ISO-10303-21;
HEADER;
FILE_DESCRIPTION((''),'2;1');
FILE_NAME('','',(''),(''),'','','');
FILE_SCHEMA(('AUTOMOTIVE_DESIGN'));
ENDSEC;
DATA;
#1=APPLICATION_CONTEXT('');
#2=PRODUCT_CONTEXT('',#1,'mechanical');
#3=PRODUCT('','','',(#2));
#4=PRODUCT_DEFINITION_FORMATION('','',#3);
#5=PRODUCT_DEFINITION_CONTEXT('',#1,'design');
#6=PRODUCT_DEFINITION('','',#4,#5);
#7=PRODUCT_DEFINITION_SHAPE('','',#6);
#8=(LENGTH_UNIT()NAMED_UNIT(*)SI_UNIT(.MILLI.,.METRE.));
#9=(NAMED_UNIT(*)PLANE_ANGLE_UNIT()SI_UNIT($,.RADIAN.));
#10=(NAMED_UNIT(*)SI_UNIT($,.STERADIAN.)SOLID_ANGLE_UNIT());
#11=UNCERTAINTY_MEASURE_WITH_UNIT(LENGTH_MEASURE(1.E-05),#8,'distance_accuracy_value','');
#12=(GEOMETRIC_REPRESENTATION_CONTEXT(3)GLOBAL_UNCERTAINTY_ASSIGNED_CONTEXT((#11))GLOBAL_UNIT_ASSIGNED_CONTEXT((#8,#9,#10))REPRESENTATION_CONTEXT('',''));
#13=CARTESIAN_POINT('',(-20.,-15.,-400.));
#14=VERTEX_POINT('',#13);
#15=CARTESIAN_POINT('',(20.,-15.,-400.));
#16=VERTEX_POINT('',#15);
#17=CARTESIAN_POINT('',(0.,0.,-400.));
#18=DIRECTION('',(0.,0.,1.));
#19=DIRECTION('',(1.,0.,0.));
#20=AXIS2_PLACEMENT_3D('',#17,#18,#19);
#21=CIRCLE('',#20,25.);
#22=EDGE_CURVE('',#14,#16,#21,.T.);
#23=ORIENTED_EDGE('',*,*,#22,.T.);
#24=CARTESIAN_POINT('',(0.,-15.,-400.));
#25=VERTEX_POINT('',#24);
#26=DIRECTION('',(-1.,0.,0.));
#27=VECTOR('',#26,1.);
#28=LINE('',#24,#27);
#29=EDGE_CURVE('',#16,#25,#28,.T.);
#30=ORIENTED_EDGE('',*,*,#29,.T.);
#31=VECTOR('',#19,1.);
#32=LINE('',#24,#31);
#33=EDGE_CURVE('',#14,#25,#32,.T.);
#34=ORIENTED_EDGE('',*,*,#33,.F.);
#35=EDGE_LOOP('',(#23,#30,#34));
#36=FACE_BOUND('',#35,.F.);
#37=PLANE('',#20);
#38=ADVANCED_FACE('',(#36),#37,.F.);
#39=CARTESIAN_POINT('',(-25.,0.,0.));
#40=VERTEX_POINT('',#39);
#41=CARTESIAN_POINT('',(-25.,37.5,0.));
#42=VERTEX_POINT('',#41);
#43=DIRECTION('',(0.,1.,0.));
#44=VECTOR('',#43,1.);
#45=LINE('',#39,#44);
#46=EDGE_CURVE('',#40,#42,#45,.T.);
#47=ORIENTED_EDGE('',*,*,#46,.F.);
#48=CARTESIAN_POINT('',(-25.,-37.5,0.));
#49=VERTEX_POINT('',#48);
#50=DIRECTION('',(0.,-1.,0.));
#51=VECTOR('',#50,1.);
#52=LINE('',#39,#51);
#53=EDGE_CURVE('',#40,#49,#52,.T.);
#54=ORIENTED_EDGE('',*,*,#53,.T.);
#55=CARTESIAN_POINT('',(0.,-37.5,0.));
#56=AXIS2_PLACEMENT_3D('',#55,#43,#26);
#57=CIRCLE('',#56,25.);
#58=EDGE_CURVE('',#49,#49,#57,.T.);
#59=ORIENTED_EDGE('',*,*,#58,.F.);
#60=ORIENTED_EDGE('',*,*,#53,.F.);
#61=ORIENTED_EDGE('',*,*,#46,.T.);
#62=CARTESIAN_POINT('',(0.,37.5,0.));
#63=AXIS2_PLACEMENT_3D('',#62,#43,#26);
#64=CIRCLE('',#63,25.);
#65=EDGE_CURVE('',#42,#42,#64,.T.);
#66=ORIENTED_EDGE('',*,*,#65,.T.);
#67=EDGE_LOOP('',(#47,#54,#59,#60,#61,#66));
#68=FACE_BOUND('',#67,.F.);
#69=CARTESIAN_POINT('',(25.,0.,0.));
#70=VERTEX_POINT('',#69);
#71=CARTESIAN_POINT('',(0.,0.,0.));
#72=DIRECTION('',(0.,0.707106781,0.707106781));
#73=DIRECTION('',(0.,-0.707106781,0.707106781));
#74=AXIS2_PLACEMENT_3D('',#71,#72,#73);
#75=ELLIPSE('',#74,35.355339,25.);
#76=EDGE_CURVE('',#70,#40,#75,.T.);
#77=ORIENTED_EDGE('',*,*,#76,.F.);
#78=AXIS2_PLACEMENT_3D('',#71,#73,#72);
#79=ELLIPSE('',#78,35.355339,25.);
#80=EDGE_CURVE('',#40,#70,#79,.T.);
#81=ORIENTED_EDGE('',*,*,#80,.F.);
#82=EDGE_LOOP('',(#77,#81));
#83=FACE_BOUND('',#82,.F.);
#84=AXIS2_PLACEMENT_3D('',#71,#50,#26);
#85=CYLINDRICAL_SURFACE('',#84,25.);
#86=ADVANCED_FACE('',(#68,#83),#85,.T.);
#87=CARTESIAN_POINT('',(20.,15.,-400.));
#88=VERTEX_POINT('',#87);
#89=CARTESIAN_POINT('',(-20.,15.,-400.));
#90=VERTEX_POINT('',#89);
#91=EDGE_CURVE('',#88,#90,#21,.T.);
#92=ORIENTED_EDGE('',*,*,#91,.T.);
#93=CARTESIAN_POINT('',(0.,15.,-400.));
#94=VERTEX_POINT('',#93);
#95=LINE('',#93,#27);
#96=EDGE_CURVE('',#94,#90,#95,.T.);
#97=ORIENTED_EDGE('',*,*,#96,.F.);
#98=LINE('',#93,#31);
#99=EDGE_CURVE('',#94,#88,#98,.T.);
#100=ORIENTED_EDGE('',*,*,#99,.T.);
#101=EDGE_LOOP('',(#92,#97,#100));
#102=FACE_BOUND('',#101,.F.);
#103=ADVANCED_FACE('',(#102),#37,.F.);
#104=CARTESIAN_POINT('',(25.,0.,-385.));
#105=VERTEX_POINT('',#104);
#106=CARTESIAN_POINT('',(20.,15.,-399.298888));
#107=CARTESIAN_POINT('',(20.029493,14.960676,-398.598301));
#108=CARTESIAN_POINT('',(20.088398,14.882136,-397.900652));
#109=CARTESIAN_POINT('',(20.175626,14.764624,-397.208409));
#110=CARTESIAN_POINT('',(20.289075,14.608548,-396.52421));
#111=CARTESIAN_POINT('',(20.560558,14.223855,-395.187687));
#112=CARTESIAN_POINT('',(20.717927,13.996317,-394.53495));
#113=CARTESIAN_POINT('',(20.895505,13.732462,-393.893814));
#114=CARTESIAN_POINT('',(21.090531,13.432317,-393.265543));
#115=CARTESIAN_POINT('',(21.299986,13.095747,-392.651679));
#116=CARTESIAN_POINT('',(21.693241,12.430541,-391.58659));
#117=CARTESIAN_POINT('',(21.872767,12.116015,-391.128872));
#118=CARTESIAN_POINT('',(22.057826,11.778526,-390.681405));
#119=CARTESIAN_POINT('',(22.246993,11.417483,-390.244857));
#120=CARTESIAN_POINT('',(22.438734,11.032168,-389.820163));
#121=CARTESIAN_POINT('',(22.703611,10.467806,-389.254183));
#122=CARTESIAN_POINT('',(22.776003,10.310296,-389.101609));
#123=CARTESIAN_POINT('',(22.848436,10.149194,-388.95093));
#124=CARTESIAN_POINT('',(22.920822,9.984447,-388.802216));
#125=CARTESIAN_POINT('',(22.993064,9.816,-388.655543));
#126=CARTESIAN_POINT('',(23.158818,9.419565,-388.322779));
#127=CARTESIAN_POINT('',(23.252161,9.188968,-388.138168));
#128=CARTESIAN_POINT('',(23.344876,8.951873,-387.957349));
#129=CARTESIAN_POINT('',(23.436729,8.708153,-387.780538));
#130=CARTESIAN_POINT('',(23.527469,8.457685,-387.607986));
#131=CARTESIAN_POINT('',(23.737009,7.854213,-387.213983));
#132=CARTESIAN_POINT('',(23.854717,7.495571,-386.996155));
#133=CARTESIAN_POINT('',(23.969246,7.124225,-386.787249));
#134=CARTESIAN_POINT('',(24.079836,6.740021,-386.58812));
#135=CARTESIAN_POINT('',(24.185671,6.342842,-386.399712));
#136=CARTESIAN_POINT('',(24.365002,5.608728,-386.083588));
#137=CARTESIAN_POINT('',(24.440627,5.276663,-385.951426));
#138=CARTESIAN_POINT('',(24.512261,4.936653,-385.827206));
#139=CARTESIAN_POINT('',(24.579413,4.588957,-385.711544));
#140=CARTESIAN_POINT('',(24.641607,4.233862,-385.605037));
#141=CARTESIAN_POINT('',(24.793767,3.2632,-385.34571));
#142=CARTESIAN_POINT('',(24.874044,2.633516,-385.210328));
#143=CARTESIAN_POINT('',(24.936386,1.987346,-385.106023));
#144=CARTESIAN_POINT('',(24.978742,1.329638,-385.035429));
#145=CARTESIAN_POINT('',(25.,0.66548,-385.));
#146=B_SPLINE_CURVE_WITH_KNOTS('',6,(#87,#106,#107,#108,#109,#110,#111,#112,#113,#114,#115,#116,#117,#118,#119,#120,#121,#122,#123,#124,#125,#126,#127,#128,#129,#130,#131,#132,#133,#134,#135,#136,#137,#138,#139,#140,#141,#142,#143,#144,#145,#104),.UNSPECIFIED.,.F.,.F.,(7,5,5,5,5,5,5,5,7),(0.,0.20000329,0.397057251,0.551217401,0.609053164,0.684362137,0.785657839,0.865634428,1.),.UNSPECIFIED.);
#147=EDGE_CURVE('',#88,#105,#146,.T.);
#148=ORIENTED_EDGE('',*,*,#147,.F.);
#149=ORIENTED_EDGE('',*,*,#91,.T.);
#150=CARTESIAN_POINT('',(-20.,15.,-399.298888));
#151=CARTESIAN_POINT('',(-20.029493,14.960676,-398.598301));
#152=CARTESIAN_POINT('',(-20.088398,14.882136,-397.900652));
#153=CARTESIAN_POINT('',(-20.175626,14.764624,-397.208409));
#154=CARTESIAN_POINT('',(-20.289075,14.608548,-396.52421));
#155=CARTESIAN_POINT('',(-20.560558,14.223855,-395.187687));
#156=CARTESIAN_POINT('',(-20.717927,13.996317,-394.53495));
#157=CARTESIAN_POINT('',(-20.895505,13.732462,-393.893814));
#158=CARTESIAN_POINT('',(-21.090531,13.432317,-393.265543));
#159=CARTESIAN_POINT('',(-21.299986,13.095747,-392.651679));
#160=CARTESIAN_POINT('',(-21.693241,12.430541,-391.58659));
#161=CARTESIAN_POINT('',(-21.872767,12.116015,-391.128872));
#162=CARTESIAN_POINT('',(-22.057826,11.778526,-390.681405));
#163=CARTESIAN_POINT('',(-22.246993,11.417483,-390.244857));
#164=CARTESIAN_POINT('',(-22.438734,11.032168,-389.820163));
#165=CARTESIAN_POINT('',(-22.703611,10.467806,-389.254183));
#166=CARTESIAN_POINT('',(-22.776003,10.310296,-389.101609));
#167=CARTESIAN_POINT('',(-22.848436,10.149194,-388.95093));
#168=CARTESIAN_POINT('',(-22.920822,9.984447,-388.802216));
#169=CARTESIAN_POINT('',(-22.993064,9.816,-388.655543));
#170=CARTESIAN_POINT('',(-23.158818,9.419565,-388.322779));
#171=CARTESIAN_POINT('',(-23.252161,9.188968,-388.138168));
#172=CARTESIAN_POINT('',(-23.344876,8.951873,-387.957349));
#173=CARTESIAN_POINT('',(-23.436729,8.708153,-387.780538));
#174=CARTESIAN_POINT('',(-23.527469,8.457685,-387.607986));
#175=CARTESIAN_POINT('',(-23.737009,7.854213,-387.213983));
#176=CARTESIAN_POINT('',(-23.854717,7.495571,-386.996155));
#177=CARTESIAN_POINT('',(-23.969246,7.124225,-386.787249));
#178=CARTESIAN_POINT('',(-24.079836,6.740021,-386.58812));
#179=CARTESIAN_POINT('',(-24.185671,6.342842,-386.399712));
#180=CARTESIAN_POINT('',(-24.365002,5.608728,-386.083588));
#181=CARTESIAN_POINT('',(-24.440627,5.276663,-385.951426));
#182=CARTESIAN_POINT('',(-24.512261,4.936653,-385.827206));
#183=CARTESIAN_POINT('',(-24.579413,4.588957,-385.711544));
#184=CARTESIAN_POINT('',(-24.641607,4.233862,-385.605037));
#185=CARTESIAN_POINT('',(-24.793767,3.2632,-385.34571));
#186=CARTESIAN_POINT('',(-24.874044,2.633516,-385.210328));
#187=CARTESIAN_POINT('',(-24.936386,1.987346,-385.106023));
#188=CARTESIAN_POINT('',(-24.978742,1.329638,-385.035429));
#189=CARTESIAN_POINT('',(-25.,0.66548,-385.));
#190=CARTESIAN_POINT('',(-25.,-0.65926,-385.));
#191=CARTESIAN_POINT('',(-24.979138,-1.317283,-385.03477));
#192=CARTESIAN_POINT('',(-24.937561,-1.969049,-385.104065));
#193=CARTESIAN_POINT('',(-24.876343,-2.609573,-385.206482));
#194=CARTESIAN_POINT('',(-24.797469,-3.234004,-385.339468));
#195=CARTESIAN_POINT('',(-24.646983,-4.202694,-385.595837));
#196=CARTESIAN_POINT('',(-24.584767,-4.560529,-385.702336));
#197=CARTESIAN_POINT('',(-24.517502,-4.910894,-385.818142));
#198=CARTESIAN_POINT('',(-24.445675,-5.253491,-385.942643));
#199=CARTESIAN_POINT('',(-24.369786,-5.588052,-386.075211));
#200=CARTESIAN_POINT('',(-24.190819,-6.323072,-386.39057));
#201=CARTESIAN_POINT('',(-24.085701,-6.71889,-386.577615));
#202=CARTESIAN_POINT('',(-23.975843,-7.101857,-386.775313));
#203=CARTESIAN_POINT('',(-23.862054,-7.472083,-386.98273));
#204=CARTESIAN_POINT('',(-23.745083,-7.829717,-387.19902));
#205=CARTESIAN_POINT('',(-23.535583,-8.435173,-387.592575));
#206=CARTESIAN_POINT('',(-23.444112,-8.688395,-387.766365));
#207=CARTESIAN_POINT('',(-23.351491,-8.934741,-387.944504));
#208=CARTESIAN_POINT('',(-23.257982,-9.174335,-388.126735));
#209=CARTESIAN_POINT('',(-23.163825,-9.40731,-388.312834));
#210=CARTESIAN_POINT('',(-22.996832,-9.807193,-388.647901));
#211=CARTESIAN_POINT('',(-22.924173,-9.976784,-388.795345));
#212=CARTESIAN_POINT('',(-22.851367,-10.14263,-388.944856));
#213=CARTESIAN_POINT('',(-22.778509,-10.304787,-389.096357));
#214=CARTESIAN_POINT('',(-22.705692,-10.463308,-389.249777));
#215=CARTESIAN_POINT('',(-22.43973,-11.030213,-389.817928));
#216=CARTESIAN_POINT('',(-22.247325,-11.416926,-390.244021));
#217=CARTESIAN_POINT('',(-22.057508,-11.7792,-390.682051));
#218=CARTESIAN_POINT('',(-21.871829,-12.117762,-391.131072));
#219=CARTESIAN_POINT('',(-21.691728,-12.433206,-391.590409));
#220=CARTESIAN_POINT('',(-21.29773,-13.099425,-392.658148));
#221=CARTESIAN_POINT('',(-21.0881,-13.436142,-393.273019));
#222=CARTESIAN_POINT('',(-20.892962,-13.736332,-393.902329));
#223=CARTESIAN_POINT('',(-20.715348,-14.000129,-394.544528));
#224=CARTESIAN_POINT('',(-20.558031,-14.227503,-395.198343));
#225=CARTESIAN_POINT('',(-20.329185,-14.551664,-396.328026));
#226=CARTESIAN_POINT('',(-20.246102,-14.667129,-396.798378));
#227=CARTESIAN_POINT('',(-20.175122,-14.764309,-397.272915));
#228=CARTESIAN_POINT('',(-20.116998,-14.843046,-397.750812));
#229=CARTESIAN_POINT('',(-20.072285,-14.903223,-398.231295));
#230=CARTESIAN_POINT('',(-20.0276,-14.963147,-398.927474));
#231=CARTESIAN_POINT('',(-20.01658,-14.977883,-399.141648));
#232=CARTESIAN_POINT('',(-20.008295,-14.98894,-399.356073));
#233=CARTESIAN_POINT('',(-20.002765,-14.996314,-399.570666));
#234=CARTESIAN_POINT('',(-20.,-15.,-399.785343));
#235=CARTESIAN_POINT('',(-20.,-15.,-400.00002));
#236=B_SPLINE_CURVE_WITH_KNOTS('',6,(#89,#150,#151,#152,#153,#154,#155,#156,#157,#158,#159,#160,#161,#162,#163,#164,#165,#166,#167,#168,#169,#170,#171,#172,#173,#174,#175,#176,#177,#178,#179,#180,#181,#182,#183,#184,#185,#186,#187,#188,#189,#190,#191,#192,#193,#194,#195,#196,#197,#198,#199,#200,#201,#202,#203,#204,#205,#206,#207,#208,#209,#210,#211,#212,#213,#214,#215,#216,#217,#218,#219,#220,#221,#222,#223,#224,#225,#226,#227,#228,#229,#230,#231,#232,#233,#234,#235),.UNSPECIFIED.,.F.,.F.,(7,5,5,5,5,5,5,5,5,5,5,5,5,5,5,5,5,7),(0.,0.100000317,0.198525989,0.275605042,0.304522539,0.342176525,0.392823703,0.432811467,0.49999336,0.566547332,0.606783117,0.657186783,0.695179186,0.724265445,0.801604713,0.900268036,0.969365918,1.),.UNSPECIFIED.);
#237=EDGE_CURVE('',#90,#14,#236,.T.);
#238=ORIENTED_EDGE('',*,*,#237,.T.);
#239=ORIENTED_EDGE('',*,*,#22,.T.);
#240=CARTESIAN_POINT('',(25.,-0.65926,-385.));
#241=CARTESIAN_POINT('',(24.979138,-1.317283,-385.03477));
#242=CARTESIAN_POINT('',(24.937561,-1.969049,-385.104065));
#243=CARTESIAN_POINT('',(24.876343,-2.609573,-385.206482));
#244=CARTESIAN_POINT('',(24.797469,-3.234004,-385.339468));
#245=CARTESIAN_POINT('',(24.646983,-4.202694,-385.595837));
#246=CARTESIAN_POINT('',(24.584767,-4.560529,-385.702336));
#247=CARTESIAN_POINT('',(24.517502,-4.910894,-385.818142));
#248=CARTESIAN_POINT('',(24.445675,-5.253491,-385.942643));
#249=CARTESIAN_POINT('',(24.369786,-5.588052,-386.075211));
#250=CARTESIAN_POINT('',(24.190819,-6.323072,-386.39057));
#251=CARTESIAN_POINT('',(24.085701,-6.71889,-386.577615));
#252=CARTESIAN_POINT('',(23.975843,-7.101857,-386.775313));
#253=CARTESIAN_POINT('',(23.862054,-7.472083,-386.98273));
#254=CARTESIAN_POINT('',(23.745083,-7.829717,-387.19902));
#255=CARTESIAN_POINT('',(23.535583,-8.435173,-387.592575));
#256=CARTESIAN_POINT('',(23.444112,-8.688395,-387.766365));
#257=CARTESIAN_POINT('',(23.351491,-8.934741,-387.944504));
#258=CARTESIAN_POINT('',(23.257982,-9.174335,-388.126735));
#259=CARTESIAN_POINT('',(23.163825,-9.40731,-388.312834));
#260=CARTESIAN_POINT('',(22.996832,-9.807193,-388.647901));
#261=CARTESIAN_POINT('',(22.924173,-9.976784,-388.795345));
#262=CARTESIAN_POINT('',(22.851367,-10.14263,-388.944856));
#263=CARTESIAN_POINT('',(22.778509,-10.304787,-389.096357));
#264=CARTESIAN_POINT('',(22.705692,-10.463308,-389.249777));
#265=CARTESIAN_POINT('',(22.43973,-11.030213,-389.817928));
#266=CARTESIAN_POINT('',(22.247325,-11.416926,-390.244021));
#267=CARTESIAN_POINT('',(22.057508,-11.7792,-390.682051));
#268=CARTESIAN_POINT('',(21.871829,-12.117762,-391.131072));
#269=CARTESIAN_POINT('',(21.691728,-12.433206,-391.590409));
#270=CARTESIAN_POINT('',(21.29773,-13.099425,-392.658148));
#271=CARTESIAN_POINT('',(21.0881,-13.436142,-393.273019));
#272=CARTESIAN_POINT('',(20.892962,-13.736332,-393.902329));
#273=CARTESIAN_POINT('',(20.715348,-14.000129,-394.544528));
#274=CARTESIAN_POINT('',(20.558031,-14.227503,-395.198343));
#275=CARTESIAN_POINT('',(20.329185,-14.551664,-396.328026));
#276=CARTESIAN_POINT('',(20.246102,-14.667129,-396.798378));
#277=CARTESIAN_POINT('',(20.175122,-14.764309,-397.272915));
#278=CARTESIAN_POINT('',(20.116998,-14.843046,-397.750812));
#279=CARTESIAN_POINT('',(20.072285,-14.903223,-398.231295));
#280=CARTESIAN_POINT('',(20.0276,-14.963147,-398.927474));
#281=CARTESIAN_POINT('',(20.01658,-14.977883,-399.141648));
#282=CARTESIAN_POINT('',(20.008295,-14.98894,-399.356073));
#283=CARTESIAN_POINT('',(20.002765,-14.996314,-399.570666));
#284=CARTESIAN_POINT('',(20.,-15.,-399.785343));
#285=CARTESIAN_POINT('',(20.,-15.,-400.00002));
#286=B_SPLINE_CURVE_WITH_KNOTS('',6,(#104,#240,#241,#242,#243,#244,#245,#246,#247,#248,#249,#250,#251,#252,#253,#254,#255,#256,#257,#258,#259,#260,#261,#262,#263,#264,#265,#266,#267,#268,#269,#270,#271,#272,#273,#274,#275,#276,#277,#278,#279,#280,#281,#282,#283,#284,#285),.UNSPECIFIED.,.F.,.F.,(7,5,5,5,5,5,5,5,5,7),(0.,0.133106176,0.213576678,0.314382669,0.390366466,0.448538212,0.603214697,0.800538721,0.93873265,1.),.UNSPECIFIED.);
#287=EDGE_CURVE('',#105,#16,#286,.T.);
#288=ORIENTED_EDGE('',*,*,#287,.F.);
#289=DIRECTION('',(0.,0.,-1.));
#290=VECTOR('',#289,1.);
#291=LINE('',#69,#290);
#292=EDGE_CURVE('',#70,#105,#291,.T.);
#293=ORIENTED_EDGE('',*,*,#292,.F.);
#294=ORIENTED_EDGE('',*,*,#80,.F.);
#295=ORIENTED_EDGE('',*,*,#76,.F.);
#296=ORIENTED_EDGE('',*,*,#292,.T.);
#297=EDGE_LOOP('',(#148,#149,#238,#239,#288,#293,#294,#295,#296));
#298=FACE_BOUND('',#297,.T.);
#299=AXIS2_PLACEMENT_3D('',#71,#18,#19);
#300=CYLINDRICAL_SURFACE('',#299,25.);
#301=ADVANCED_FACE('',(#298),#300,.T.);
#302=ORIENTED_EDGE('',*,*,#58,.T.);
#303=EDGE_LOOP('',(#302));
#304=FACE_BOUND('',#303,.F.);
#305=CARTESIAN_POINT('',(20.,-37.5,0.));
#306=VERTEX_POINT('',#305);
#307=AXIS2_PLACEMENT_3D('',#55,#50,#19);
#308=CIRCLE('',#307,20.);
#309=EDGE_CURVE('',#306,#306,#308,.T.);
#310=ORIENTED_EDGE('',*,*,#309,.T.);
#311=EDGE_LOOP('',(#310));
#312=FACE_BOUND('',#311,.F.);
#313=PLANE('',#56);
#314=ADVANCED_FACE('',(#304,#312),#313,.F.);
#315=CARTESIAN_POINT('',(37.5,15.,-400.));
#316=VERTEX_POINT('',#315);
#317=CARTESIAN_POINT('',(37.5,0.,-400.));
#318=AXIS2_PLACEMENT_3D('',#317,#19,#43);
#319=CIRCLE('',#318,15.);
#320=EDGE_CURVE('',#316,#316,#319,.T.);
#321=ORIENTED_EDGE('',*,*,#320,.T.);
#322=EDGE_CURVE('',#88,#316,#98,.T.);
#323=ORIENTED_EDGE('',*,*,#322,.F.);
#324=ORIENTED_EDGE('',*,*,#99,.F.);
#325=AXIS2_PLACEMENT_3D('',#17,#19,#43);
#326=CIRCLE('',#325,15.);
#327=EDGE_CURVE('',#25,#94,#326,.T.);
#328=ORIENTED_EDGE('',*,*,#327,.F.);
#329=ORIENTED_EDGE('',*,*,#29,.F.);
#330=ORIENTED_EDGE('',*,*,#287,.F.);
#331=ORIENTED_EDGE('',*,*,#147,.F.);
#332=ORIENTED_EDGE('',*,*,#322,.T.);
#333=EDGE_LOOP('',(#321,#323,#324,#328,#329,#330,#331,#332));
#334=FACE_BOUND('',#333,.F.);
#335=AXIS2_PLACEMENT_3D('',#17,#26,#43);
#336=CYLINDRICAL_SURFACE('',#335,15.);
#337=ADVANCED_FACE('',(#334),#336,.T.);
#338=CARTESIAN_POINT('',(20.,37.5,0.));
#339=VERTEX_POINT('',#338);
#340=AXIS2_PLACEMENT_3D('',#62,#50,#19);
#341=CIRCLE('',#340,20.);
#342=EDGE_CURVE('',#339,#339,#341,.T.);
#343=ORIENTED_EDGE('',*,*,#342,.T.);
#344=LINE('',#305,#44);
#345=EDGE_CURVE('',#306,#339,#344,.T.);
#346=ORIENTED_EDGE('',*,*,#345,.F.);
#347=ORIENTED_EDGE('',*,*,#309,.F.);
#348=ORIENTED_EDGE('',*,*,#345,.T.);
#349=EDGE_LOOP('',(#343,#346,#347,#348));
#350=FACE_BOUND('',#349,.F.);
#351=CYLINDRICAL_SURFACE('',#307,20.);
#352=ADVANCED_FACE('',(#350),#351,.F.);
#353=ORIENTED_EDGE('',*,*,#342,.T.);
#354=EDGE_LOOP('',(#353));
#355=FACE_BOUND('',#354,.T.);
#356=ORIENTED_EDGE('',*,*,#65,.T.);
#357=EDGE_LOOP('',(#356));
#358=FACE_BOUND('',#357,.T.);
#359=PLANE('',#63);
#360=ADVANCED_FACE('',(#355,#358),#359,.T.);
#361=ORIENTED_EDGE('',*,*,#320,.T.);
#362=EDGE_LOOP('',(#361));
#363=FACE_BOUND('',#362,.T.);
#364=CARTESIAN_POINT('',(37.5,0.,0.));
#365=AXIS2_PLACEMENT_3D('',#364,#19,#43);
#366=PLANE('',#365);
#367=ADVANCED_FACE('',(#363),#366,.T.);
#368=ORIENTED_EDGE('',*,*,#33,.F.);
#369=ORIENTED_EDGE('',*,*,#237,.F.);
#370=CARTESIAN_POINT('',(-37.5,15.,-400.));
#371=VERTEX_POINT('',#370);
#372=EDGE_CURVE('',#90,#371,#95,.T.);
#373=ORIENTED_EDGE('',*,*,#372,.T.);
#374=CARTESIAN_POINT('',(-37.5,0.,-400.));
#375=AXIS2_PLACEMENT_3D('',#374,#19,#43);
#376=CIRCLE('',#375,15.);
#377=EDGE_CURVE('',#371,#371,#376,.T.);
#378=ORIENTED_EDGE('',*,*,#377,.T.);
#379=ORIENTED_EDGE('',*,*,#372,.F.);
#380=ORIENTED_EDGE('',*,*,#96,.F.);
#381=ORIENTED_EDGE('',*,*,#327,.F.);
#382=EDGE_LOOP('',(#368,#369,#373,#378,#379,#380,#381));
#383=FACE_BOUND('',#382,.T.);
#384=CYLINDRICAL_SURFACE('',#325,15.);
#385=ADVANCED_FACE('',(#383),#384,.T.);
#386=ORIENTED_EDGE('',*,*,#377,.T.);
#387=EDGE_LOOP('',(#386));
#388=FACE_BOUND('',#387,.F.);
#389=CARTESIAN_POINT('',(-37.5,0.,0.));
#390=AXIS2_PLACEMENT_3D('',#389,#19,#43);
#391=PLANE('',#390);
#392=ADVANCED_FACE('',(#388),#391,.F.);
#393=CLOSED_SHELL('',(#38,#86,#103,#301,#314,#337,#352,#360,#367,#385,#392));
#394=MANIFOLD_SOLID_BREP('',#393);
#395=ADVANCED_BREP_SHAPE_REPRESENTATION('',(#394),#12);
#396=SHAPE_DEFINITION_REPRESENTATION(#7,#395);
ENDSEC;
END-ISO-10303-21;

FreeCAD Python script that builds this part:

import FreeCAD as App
import Part
import Sketcher
Q = App.Units.Quantity

doc = App.newDocument("Part")
body = doc.addObject("PartDesign::Body", "Body")

# Sketch on XY plane
sketch1 = body.newObject("Sketcher::SketchObject", "Sketch")
sketch1.AttachmentSupport = (doc.getObject("XY_Plane"), [""])
sketch1.MapMode = "FlatFace"
sketch1.addGeometry(Part.Circle(App.Vector(0, 0, 0), App.Vector(0, 0, 1), 25), False)
sketch1.addConstraint(Sketcher.Constraint("Coincident", 0, 3, -1, 1))
sketch1.addConstraint(Sketcher.Constraint("Diameter", 0, Q("50 mm")))
pad1 = body.newObject("PartDesign::Pad", "Pad")
pad1.Profile = sketch1
pad1.Length = 400
pad1.Reversed = True

# Sketch on XZ plane
sketch2 = body.newObject("Sketcher::SketchObject", "Sketch001")
sketch2.AttachmentSupport = (doc.getObject("XZ_Plane"), [""])
sketch2.MapMode = "FlatFace"
sketch2.addGeometry(Part.Circle(App.Vector(0, 0, 0), App.Vector(0, 0, 1), 25), False)
sketch2.addConstraint(Sketcher.Constraint("Coincident", 0, 3, -1, 1))
sketch2.addConstraint(Sketcher.Constraint("Diameter", 0, Q("50 mm")))
pad2 = body.newObject("PartDesign::Pad", "Pad001")
pad2.Profile = sketch2
pad2.Length = 75
pad2.Midplane = True

# Sketch on XZ plane
sketch3 = body.newObject("Sketcher::SketchObject", "Sketch002")
sketch3.AttachmentSupport = (doc.getObject("XZ_Plane"), [""])
sketch3.MapMode = "FlatFace"
sketch3.AttachmentOffset = App.Placement(App.Vector(0, 0, 37.5), App.Rotation())
sketch3.addGeometry(Part.Circle(App.Vector(0, 0, 0), App.Vector(0, 0, 1), 20), False)
sketch3.addConstraint(Sketcher.Constraint("Coincident", 0, 3, -1, 1))
sketch3.addConstraint(Sketcher.Constraint("Diameter", 0, Q("40 mm")))
pocket1 = body.newObject("PartDesign::Pocket", "Pocket")
pocket1.Profile = sketch3
pocket1.Length = 75

# Sketch on YZ plane
sketch4 = body.newObject("Sketcher::SketchObject", "Sketch003")
sketch4.AttachmentSupport = (doc.getObject("YZ_Plane"), [""])
sketch4.MapMode = "FlatFace"
sketch4.addGeometry(Part.Circle(App.Vector(0, -400, 0), App.Vector(0, 0, 1), 15), False)
sketch4.addConstraint(Sketcher.Constraint("PointOnObject", 0, 3, -2))
sketch4.addConstraint(Sketcher.Constraint("Diameter", 0, Q("30 mm")))
sketch4.addConstraint(Sketcher.Constraint("DistanceY", 0, 3, -1, 1, Q("400 mm")))
pad3 = body.newObject("PartDesign::Pad", "Pad002")
pad3.Profile = sketch4
pad3.Length = 75
pad3.Midplane = True

doc.recompute()
